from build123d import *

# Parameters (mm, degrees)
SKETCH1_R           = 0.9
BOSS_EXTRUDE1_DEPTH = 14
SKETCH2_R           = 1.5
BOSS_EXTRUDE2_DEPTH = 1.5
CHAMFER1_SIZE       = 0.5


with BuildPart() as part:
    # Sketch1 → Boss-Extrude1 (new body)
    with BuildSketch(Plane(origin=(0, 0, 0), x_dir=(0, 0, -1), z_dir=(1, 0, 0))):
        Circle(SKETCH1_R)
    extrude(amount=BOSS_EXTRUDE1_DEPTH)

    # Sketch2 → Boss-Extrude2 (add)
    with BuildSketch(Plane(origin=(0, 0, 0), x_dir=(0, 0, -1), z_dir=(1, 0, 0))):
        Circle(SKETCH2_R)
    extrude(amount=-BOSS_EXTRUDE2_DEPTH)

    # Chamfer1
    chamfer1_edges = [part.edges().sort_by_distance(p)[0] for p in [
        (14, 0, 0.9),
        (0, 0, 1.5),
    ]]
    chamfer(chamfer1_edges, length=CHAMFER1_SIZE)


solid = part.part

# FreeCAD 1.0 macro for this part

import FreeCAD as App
import Part
import Sketcher
from FreeCAD import Vector
Q = App.Units.Quantity


def edges_at(feature, points):
    """Names of the edges that pass closest to the given points."""
    edges = feature.Shape.Edges
    near = lambda p: min(range(len(edges)), key=lambda i: edges[i].distToShape(Part.Vertex(*p))[0])
    return sorted({f"Edge{near(p) + 1}" for p in points})

doc = App.newDocument("Part")
params = doc.addObject("Spreadsheet::Sheet", "Params")
for row, (alias, value) in enumerate([
    ("sketch1_diameter", "1.8 mm"),
    ("pad1_length", "14 mm"),
    ("sketch2_diameter", "3 mm"),
    ("pad2_length", "1.5 mm"),
    ("chamfer_size", "0.5 mm"),
], start=1):
    params.set(f"A{row}", alias)
    params.set(f"B{row}", "=" + value)
    params.setAlias(f"B{row}", alias)

body = doc.addObject("PartDesign::Body", "Body")

# Sketch on YZ plane
sketch1 = body.newObject("Sketcher::SketchObject", "Sketch")
sketch1.AttachmentSupport = (doc.getObject("YZ_Plane"), [""])
sketch1.MapMode = "FlatFace"
sketch1.addGeometry(Part.Circle(Vector(0, 0, 0), Vector(0, 0, 1), 0.9), False)
sketch1.addConstraint(Sketcher.Constraint("Coincident", 0, 3, -1, 1))
sketch1.addConstraint(Sketcher.Constraint("Diameter", 0, Q("1.8 mm")))
sketch1.setExpression("Constraints[1]", "Params.sketch1_diameter")
pad1 = body.newObject("PartDesign::Pad", "Pad")
pad1.Profile = sketch1
pad1.setExpression("Length", "Params.pad1_length")

# Sketch on YZ plane
sketch2 = body.newObject("Sketcher::SketchObject", "Sketch001")
sketch2.AttachmentSupport = (doc.getObject("YZ_Plane"), [""])
sketch2.MapMode = "FlatFace"
sketch2.addGeometry(Part.Circle(Vector(0, 0, 0), Vector(0, 0, 1), 1.5), False)
sketch2.addConstraint(Sketcher.Constraint("Coincident", 0, 3, -1, 1))
sketch2.addConstraint(Sketcher.Constraint("Diameter", 0, Q("3 mm")))
sketch2.setExpression("Constraints[1]", "Params.sketch2_diameter")
pad2 = body.newObject("PartDesign::Pad", "Pad001")
pad2.Profile = sketch2
pad2.setExpression("Length", "Params.pad2_length")
pad2.Reversed = True
doc.recompute()

chamfer = body.newObject("PartDesign::Chamfer", "Chamfer")
chamfer.Base = (pad2, edges_at(pad2, [(14, 0, 0.9), (0, 0, 1.5)]))
chamfer.setExpression("Size", "Params.chamfer_size")

doc.recompute()
